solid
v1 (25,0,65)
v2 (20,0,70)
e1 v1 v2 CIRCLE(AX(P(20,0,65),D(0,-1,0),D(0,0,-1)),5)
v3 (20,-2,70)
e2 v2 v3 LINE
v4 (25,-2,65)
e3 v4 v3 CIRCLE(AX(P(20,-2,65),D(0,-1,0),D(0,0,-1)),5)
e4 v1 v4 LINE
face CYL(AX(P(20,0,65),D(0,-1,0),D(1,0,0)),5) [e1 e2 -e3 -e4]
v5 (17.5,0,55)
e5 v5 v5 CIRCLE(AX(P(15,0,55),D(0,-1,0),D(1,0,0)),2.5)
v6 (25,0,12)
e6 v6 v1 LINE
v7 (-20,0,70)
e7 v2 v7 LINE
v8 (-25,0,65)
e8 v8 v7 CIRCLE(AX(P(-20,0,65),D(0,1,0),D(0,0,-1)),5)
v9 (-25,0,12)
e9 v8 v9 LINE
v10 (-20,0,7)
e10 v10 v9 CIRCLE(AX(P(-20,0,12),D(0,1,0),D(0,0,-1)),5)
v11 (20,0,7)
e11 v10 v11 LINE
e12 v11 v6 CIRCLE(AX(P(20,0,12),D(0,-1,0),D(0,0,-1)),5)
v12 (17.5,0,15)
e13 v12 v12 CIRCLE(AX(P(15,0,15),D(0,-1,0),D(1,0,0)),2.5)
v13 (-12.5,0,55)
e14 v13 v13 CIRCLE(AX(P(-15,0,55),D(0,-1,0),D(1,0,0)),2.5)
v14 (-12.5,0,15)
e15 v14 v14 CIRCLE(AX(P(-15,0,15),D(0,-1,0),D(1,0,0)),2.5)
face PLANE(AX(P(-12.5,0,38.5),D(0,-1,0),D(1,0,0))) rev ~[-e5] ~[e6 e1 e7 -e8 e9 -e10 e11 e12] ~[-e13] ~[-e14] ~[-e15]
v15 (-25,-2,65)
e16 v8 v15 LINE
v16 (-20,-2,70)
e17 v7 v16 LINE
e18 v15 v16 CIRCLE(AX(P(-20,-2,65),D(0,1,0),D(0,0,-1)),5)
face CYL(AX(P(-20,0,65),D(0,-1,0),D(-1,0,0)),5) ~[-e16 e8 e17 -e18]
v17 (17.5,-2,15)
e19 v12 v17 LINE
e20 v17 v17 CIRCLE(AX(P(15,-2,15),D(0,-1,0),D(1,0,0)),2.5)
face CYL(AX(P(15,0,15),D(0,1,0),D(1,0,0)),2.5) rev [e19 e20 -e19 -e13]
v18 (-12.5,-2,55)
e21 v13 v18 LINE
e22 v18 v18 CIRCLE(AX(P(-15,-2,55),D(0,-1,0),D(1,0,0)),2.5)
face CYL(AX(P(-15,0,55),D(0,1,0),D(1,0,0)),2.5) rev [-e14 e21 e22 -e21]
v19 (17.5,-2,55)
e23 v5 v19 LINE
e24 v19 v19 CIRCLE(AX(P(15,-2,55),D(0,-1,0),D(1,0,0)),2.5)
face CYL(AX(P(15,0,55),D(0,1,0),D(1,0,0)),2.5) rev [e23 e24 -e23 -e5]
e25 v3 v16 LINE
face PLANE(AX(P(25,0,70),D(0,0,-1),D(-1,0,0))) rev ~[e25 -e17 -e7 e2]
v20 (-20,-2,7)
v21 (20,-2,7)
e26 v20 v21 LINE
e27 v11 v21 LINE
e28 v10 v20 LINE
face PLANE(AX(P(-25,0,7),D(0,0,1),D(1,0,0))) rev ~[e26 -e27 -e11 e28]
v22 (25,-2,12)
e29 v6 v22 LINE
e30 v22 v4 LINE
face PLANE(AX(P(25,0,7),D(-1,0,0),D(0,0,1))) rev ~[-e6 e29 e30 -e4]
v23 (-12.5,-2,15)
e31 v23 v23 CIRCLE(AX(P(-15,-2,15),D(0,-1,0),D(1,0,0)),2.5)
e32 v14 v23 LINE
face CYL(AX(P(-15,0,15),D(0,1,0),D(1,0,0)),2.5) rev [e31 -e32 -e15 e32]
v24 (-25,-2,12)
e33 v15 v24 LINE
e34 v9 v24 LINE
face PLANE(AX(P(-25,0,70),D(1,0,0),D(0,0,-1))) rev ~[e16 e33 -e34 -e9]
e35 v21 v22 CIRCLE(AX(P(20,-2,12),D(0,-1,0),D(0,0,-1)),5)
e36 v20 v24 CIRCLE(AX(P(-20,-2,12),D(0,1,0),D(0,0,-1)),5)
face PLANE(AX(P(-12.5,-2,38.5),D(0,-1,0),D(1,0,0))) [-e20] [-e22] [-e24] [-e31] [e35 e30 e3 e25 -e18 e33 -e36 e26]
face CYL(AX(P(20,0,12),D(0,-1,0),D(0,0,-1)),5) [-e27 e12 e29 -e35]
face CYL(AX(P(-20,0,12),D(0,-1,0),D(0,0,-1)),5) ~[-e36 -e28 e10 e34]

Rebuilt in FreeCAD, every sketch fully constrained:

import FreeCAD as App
import Part
import Sketcher
Q = App.Units.Quantity


def edges_at(feature, points):
    """Names of the edges that pass closest to the given points."""
    edges = feature.Shape.Edges
    near = lambda p: min(range(len(edges)), key=lambda i: edges[i].distToShape(Part.Vertex(*p))[0])
    return sorted({f"Edge{near(p) + 1}" for p in points})

doc = App.newDocument("Part")
body = doc.addObject("PartDesign::Body", "Body")

# Sketch on XZ plane
sketch1 = body.newObject("Sketcher::SketchObject", "Sketch")
sketch1.AttachmentSupport = (doc.getObject("XZ_Plane"), [""])
sketch1.MapMode = "FlatFace"
sketch1.addGeometry([
    Part.LineSegment(App.Vector(-25, 7, 0), App.Vector(25, 7, 0)),  # 0
    Part.LineSegment(App.Vector(25, 7, 0), App.Vector(25, 70, 0)),  # 1
    Part.LineSegment(App.Vector(25, 70, 0), App.Vector(-25, 70, 0)),  # 2
    Part.LineSegment(App.Vector(-25, 70, 0), App.Vector(-25, 7, 0)),  # 3
    Part.Circle(App.Vector(-15, 15, 0), App.Vector(0, 0, 1), 2.5),  # 4
    Part.Circle(App.Vector(15, 15, 0), App.Vector(0, 0, 1), 2.5),  # 5
    Part.Circle(App.Vector(-15, 55, 0), App.Vector(0, 0, 1), 2.5),  # 6
    Part.Circle(App.Vector(15, 55, 0), App.Vector(0, 0, 1), 2.5),  # 7
], False)
sketch1.addConstraint([
    Sketcher.Constraint("Coincident", 0, 2, 1, 1),
    Sketcher.Constraint("Coincident", 1, 2, 2, 1),
    Sketcher.Constraint("Coincident", 2, 2, 3, 1),
    Sketcher.Constraint("Coincident", 3, 2, 0, 1),
    Sketcher.Constraint("Horizontal", 0),
    Sketcher.Constraint("Vertical", 1),
    Sketcher.Constraint("Horizontal", 2),
    Sketcher.Constraint("Vertical", 3),
    Sketcher.Constraint("Equal", 4, 5),
    Sketcher.Constraint("Equal", 5, 6),
    Sketcher.Constraint("Equal", 6, 7),
    Sketcher.Constraint("Symmetric", 4, 3, 5, 3, -2),
    Sketcher.Constraint("Symmetric", 6, 3, 7, 3, -2),
    Sketcher.Constraint("Vertical", 4, 3, 6, 3),
    Sketcher.Constraint("Diameter", 4, Q("5 mm")),
    Sketcher.Constraint("DistanceX", 0, 1, 0, 2, Q("50 mm")),
    Sketcher.Constraint("DistanceY", 1, 1, 1, 2, Q("63 mm")),
    Sketcher.Constraint("DistanceX", 4, 3, -1, 1, Q("15 mm")),
    Sketcher.Constraint("DistanceY", -1, 1, 4, 3, Q("15 mm")),
    Sketcher.Constraint("DistanceY", -1, 1, 6, 3, Q("55 mm")),
    Sketcher.Constraint("DistanceX", -1, 1, 0, 2, Q("25 mm")),
    Sketcher.Constraint("DistanceY", -1, 1, 0, 2, Q("7 mm")),
])
pad1 = body.newObject("PartDesign::Pad", "Pad")
pad1.Profile = sketch1
pad1.Length = 2
doc.recompute()

fillet = body.newObject("PartDesign::Fillet", "Fillet")
fillet.Base = (pad1, edges_at(pad1, [
    (-25, -1, 70),
    (25, -1, 70),
    (-25, -1, 7),
    (25, -1, 7),
]))
fillet.Radius = 5

doc.recompute()
